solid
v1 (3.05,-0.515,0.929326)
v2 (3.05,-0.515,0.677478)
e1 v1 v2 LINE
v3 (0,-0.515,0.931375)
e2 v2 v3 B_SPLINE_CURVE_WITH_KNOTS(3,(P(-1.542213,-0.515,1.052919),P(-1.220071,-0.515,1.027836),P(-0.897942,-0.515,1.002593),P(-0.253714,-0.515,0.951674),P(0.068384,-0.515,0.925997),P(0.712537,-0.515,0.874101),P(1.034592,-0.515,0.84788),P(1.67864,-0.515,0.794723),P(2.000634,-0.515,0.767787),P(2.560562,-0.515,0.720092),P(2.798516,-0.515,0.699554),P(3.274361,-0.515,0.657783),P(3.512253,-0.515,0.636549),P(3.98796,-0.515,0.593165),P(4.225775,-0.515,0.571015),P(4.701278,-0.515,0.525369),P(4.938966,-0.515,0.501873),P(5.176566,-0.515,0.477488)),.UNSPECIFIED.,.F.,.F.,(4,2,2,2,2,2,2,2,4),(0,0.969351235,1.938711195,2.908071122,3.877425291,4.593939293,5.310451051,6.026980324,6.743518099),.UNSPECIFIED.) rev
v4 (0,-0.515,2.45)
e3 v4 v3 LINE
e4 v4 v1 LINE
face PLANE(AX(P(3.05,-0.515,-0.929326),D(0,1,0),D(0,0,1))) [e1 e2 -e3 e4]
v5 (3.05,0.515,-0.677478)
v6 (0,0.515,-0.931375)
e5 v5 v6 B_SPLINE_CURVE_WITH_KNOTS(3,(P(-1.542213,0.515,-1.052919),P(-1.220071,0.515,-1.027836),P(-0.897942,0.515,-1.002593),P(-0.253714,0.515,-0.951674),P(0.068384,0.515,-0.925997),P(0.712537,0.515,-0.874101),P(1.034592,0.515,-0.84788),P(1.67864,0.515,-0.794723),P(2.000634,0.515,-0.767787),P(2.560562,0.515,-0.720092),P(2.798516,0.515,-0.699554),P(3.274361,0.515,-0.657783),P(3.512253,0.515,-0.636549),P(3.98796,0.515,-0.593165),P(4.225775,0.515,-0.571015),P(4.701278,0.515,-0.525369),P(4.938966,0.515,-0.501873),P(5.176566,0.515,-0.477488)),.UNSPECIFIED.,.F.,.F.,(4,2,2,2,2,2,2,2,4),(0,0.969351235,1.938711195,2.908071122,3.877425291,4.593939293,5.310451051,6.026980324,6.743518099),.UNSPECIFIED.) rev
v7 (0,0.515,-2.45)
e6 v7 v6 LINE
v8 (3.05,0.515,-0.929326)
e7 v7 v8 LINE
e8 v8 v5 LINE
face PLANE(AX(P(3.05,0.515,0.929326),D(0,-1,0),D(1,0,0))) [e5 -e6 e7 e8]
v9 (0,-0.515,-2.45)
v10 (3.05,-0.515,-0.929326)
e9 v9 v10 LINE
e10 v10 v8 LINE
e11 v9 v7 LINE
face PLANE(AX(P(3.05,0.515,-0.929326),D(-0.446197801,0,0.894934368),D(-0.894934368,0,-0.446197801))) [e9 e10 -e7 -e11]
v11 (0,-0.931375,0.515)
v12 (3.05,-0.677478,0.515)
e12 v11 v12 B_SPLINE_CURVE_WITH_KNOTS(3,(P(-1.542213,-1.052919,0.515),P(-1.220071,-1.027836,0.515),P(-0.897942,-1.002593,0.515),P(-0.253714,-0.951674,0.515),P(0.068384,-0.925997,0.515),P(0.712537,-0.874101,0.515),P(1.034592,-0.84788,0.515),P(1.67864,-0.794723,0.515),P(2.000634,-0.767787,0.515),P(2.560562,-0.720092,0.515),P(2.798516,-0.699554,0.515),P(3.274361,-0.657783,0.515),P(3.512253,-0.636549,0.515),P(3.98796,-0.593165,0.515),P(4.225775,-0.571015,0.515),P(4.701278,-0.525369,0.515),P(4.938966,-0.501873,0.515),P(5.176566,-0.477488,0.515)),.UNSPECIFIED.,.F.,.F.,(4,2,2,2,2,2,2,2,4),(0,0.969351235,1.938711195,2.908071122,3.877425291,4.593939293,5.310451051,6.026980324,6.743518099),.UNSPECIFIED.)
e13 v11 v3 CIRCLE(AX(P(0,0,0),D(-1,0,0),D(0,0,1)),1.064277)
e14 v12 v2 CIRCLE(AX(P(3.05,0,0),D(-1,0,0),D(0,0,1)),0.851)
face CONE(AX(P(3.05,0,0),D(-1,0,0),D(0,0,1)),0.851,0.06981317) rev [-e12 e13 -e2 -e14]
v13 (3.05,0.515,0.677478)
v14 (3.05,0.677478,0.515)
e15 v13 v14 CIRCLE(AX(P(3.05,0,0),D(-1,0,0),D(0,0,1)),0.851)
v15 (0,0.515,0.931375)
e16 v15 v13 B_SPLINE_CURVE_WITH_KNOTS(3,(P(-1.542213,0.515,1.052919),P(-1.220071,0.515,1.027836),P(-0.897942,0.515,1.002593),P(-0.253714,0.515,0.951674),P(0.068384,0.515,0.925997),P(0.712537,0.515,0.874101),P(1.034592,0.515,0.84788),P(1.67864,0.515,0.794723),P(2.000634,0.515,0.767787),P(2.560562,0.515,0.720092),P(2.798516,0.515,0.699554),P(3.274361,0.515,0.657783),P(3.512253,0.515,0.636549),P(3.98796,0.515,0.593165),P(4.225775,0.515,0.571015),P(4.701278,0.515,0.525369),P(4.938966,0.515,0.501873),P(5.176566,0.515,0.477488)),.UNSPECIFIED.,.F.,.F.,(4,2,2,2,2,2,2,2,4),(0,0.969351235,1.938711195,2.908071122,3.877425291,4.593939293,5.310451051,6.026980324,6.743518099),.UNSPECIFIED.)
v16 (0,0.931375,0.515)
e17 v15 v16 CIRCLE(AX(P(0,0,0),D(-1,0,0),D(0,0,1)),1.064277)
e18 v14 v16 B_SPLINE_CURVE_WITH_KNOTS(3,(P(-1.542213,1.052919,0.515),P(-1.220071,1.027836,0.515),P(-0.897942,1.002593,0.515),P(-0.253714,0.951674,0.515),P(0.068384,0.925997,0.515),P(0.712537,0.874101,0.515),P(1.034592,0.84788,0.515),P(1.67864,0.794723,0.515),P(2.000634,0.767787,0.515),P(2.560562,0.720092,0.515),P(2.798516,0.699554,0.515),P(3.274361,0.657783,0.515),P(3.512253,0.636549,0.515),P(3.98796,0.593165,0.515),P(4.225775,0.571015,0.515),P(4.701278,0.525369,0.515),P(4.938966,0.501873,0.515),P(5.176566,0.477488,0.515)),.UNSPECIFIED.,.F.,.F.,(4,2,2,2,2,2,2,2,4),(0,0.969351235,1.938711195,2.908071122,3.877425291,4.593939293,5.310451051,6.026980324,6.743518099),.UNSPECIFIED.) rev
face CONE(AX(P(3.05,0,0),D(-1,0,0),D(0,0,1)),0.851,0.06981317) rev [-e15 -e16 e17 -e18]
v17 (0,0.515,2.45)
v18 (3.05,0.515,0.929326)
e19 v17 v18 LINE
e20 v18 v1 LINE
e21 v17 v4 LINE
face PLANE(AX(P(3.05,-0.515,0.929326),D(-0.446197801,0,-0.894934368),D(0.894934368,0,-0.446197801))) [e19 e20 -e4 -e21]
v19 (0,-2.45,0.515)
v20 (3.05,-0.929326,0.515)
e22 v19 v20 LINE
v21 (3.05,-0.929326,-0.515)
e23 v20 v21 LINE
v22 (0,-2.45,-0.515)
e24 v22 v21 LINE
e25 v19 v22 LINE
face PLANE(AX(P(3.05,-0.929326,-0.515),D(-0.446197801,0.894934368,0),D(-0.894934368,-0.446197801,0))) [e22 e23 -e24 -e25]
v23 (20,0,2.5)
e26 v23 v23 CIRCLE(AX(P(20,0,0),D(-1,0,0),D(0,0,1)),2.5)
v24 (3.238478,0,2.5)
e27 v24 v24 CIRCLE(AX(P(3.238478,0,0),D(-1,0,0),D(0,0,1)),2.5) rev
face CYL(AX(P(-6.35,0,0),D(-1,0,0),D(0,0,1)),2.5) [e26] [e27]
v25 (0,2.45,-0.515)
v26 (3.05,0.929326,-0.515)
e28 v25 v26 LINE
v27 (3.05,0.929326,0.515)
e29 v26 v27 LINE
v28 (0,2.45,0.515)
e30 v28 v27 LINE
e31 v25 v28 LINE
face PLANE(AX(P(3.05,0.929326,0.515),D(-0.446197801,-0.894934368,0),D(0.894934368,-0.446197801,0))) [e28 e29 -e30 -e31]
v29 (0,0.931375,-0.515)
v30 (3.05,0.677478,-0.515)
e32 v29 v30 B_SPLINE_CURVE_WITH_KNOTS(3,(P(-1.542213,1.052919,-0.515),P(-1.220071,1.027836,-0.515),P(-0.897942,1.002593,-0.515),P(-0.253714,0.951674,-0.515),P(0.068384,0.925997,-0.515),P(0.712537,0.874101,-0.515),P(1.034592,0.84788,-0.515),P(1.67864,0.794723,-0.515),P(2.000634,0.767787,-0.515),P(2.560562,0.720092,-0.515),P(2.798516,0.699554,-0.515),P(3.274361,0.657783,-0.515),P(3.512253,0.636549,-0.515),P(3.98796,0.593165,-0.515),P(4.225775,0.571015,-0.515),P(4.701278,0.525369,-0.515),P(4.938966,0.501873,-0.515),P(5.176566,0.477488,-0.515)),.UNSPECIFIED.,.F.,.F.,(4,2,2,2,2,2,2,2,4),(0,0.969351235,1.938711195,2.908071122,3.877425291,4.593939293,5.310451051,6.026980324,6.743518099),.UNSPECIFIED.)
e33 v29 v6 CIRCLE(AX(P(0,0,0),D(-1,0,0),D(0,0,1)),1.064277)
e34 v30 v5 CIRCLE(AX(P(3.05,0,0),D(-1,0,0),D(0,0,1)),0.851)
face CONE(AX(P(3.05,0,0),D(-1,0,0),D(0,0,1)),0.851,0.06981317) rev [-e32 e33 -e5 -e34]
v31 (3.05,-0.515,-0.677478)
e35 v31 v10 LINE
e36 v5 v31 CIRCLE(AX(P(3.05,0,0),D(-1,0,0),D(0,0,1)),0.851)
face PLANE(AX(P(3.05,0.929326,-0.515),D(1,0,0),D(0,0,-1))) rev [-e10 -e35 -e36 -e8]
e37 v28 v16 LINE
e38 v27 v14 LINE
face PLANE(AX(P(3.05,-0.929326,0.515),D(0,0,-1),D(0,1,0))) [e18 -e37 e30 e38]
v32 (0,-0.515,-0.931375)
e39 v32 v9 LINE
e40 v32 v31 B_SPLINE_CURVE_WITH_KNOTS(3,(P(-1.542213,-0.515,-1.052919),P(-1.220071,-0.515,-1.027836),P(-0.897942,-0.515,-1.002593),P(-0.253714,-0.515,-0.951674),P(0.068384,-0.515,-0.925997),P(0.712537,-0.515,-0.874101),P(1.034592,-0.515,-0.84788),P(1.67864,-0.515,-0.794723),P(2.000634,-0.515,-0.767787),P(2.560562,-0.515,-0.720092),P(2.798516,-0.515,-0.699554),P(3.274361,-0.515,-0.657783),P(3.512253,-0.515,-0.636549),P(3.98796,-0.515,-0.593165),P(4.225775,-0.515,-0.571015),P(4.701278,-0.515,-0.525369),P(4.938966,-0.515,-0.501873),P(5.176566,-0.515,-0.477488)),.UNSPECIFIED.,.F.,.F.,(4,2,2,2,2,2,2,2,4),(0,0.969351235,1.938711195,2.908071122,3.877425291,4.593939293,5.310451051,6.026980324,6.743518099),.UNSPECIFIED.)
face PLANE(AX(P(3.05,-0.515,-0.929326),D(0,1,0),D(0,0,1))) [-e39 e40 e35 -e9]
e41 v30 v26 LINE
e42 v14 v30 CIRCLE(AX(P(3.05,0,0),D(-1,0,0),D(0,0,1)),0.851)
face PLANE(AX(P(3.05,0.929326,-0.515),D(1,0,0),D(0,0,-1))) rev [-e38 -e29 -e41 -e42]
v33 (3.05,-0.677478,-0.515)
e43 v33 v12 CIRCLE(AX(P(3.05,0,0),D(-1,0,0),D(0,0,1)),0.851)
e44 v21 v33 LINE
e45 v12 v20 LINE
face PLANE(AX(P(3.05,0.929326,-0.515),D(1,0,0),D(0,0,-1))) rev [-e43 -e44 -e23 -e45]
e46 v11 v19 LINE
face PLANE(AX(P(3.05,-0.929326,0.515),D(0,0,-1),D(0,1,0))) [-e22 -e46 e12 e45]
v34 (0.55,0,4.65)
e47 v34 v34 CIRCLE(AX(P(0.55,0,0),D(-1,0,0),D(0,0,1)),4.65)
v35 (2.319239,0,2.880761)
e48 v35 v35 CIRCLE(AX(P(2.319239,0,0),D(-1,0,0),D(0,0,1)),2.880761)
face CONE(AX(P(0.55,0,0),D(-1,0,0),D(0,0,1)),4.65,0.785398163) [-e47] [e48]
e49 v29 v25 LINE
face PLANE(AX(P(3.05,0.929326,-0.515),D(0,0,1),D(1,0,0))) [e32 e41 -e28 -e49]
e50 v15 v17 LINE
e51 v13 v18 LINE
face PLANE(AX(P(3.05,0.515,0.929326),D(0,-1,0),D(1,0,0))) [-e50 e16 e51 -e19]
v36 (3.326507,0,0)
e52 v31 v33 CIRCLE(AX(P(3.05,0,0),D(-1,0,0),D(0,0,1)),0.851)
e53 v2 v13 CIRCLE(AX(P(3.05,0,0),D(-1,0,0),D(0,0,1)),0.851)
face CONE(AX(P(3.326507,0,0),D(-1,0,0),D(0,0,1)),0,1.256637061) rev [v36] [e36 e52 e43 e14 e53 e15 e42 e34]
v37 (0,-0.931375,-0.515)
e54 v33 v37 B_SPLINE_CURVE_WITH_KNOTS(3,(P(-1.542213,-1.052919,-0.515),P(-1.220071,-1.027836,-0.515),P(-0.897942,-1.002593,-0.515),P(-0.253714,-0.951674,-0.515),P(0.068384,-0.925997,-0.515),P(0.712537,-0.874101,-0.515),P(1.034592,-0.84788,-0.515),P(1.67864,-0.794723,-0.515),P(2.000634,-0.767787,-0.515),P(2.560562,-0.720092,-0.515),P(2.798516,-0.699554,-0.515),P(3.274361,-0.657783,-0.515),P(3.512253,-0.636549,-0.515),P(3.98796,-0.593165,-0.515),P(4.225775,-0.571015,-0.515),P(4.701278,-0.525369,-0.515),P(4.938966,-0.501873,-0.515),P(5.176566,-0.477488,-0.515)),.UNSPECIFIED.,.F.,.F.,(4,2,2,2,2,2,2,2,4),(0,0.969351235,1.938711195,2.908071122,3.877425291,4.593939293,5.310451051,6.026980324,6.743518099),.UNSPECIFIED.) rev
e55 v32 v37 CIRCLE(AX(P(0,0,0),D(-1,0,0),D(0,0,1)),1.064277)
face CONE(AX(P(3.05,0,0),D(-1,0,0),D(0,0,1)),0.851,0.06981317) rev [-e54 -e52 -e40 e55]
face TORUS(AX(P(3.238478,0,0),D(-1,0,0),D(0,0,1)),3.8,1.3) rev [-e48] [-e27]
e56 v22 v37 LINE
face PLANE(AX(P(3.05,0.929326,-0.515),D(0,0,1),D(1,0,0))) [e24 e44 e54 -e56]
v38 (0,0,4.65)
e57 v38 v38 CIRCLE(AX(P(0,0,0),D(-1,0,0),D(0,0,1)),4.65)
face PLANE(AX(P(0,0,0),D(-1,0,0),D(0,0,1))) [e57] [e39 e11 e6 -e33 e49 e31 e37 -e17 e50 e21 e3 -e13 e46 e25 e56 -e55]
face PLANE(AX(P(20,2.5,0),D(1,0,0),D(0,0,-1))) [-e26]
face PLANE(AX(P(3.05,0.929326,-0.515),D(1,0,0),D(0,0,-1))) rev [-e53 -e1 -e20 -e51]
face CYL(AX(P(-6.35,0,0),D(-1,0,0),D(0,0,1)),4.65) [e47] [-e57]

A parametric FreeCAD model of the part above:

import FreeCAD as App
import Part
import Sketcher
Q = App.Units.Quantity


def edges_at(feature, points):
    """Names of the edges that pass closest to the given points."""
    edges = feature.Shape.Edges
    near = lambda p: min(range(len(edges)), key=lambda i: edges[i].distToShape(Part.Vertex(*p))[0])
    return sorted({f"Edge{near(p) + 1}" for p in points})


def add_polygon(sketch, points):
    """Adds a closed chain of lines whose ends are joined by coincident constraints."""
    first, n = sketch.GeometryCount, len(points)
    for a, b in zip(points, points[1:] + points[:1]):
        sketch.addGeometry(Part.LineSegment(App.Vector(*a, 0), App.Vector(*b, 0)), False)
    for i in range(n):
        sketch.addConstraint(Sketcher.Constraint("Coincident", first + i, 2, first + (i + 1) % n, 1))

doc = App.newDocument("Part")
body = doc.addObject("PartDesign::Body", "Body")

# Sketch on XY plane
sketch1 = body.newObject("Sketcher::SketchObject", "Sketch")
sketch1.AttachmentSupport = (doc.getObject("XY_Plane"), [""])
sketch1.MapMode = "FlatFace"
add_polygon(sketch1, [(0, 4.7), (0, 0), (20, 0), (20, 2.5), (2.7, 2.5), (0.6, 4.7)])  # lines 0-5
sketch1.addConstraint([
    Sketcher.Constraint("Vertical", 0),
    Sketcher.Constraint("Horizontal", 1),
    Sketcher.Constraint("Vertical", 2),
    Sketcher.Constraint("Horizontal", 3),
    Sketcher.Constraint("Horizontal", 5),
    Sketcher.Constraint("Coincident", 0, 2, -1, 1),
    Sketcher.Constraint("DistanceX", 1, 1, 1, 2, 20.0),
    Sketcher.Constraint("Angle", 4, Q("135 deg")),
    Sketcher.Constraint("DistanceX", 3, 2, 3, 1, 17.3),
    Sketcher.Constraint("DistanceY", 2, 1, 2, 2, 2.5),
    Sketcher.Constraint("DistanceX", 5, 2, 5, 1, 0.55),
])
revolution = body.newObject("PartDesign::Revolution", "Revolution")
revolution.Profile = sketch1
revolution.ReferenceAxis = (sketch1, ["H_Axis"])
revolution.Angle = 360
doc.recompute()

fillet = body.newObject("PartDesign::Fillet", "Fillet")
fillet.Base = (revolution, edges_at(revolution, [(2.7, 0, -2.5)]))
fillet.Radius = 1.3

# Sketch on YZ plane
sketch2 = body.newObject("Sketcher::SketchObject", "Sketch001")
sketch2.AttachmentSupport = (doc.getObject("YZ_Plane"), [""])
sketch2.MapMode = "FlatFace"
add_polygon(sketch2, [(2.5, 0.5), (2.5, -0.5), (-2.5, -0.5), (-2.5, 0.5)])  # lines 0-3
sketch2.addConstraint([
    Sketcher.Constraint("Vertical", 0),
    Sketcher.Constraint("Horizontal", 1),
    Sketcher.Constraint("Vertical", 2),
    Sketcher.Constraint("Horizontal", 3),
    Sketcher.Constraint("Symmetric", 0, 2, 2, 2, -1, 1),
    Sketcher.Constraint("DistanceX", 1, 2, 1, 1, 4.9),
    Sketcher.Constraint("DistanceY", 0, 2, 0, 1, 1.03),
])

# Sketch on YZ plane
sketch3 = body.newObject("Sketcher::SketchObject", "Sketch002")
sketch3.AttachmentSupport = (doc.getObject("YZ_Plane"), [""])
sketch3.MapMode = "FlatFace"
sketch3.AttachmentOffset = App.Placement(App.Vector(0, 0, 3.05), App.Rotation())
add_polygon(sketch3, [(0.9, 0.5), (0.9, -0.5), (-0.9, -0.5), (-0.9, 0.5)])  # lines 0-3
sketch3.addConstraint([
    Sketcher.Constraint("Vertical", 0),
    Sketcher.Constraint("Horizontal", 1),
    Sketcher.Constraint("Vertical", 2),
    Sketcher.Constraint("Horizontal", 3),
    Sketcher.Constraint("Symmetric", 0, 2, 2, 2, -1, 1),
    Sketcher.Constraint("DistanceY", 0, 2, 0, 1, 1.03),
    Sketcher.Constraint("DistanceX", 1, 2, 1, 1, 1.858652),
])

subtractiveloft = body.newObject("PartDesign::SubtractiveLoft", "SubtractiveLoft")
subtractiveloft.Profile = sketch2
subtractiveloft.Sections = [sketch3]
doc.recompute()

polarpattern = body.newObject("PartDesign::PolarPattern", "PolarPattern")
polarpattern.Originals = [subtractiveloft]
polarpattern.Axis = (doc.getObject("X_Axis"), [""])
polarpattern.Angle = 90
polarpattern.Occurrences = 2
body.Tip = polarpattern

# Sketch on XY plane
sketch4 = body.newObject("Sketcher::SketchObject", "Sketch003")
sketch4.AttachmentSupport = (doc.getObject("XY_Plane"), [""])
sketch4.MapMode = "FlatFace"
add_polygon(sketch4, [(0, 1.1), (0, 0), (3.3, 0), (3, 0.9)])  # lines 0-3
sketch4.addConstraint([
    Sketcher.Constraint("Vertical", 0),
    Sketcher.Constraint("Horizontal", 1),
    Sketcher.Constraint("Coincident", 0, 2, -1, 1),
    Sketcher.Constraint("Angle", 2, Q("108 deg")),
    Sketcher.Constraint("Angle", 3, Q("176 deg")),
    Sketcher.Constraint("DistanceX", -1, 1, 2, 2, 3.05),
    Sketcher.Constraint("DistanceY", -1, 1, 2, 2, 0.851),
])
groove = body.newObject("PartDesign::Groove", "Groove")
groove.Profile = sketch4
groove.ReferenceAxis = (sketch4, ["H_Axis"])
groove.Angle = 360

doc.recompute()
